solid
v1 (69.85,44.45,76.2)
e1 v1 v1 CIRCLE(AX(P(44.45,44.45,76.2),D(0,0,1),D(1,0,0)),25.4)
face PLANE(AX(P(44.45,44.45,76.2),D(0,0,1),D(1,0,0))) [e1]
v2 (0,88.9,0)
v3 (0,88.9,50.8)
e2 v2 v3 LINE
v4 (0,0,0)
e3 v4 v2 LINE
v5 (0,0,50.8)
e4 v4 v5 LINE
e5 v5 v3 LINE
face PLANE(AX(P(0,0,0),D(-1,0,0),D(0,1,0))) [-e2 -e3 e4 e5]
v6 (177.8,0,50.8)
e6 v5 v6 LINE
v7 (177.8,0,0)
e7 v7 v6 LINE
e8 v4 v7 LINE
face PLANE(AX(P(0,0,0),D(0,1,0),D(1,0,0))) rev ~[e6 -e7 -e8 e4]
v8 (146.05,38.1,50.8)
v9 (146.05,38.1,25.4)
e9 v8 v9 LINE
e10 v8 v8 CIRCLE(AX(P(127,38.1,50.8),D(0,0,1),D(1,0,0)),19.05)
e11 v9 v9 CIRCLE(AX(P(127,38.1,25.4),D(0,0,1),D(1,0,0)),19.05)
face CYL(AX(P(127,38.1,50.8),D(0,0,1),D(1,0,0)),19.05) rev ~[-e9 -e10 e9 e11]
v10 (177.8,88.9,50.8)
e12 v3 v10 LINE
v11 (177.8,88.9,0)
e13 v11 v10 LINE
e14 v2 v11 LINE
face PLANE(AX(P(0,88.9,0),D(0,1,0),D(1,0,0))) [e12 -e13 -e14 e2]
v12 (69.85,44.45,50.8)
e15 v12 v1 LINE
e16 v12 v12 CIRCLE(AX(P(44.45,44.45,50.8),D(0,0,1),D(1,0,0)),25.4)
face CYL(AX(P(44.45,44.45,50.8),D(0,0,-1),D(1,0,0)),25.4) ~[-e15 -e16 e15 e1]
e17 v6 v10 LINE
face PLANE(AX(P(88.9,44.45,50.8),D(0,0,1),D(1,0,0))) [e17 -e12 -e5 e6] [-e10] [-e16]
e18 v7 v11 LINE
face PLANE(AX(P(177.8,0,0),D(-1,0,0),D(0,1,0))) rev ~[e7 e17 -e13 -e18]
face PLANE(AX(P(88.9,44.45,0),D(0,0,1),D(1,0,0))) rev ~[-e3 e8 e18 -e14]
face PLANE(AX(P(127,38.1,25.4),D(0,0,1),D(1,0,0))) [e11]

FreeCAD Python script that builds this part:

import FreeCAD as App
import Part
import Sketcher

V = App.Vector
Q = App.Units.Quantity


def add_polygon(sketch, points):
    """Adds a closed chain of lines whose ends are joined by coincident constraints."""
    first, n = sketch.GeometryCount, len(points)
    for a, b in zip(points, points[1:] + points[:1]):
        sketch.addGeometry(Part.LineSegment(App.Vector(*a, 0), App.Vector(*b, 0)), False)
    for i in range(n):
        sketch.addConstraint(Sketcher.Constraint("Coincident", first + i, 2, first + (i + 1) % n, 1))

doc = App.newDocument("Part")
body = doc.addObject("PartDesign::Body", "Body")

sketch1 = doc.addObject("Sketcher::SketchObject", "Sketch")
body.addObject(sketch1)
sketch1.AttachmentSupport = (doc.XY_Plane, [""])
sketch1.MapMode = "FlatFace"
add_polygon(sketch1, [(0, 89), (0, 0), (178, 0), (178, 89)])
sketch1.addConstraint([
    Sketcher.Constraint("Vertical", 0),
    Sketcher.Constraint("Horizontal", 1),
    Sketcher.Constraint("Vertical", 2),
    Sketcher.Constraint("Horizontal", 3),
    Sketcher.Constraint("Coincident", 0, 2, -1, 1),
    Sketcher.Constraint("DistanceX", 1, 1, 1, 2, Q("7 in")),
    Sketcher.Constraint("DistanceY", 0, 2, 0, 1, Q("3.5 in")),
])
pad1 = doc.addObject("PartDesign::Pad", "Pad")
body.addObject(pad1)
pad1.Profile = sketch1
pad1.Length = Q("2 in")

sketch2 = doc.addObject("Sketcher::SketchObject", "Sketch001")
body.addObject(sketch2)
sketch2.AttachmentSupport = (doc.XY_Plane, [""])
sketch2.MapMode = "FlatFace"
sketch2.AttachmentOffset = App.Placement(V(0, 0, 2 * 25.4), App.Rotation())
sketch2.addGeometry(Part.Circle(V(44, 44, 0), V(0, 0, 1), 25), False)
sketch2.addConstraint([
    Sketcher.Constraint("Diameter", 0, Q("2 in")),
    Sketcher.Constraint("DistanceX", -1, 1, 0, 3, Q("1.75 in")),
    Sketcher.Constraint("DistanceY", -1, 1, 0, 3, Q("1.75 in")),
])
pad2 = doc.addObject("PartDesign::Pad", "Pad001")
body.addObject(pad2)
pad2.Profile = sketch2
pad2.Length = Q("1 in")

sketch3 = doc.addObject("Sketcher::SketchObject", "Sketch002")
body.addObject(sketch3)
sketch3.AttachmentSupport = (doc.XY_Plane, [""])
sketch3.MapMode = "FlatFace"
sketch3.AttachmentOffset = App.Placement(V(0, 0, 2 * 25.4), App.Rotation())
sketch3.addGeometry(Part.Circle(V(127, 38, 0), V(0, 0, 1), 19), False)
sketch3.addConstraint([
    Sketcher.Constraint("Diameter", 0, Q("1.5 in")),
    Sketcher.Constraint("DistanceX", -1, 1, 0, 3, Q("5 in")),
    Sketcher.Constraint("DistanceY", -1, 1, 0, 3, Q("1.5 in")),
])
pocket1 = doc.addObject("PartDesign::Pocket", "Pocket")
body.addObject(pocket1)
pocket1.Profile = sketch3
pocket1.Length = Q("1 in")

doc.recompute()
